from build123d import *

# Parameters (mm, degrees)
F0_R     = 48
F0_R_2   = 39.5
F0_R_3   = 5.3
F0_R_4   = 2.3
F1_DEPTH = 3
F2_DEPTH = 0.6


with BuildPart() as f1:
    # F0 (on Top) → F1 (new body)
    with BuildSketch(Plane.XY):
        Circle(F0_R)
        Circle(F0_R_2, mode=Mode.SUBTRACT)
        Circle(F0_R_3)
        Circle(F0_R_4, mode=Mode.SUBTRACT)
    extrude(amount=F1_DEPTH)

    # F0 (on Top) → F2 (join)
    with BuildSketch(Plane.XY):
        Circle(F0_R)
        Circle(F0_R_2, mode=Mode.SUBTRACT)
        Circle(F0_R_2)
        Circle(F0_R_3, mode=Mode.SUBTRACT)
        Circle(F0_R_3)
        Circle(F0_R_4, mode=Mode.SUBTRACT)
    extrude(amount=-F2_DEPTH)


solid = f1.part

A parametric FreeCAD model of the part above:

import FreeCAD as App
import Part
import Sketcher

doc = App.newDocument("Part")
body = doc.addObject("PartDesign::Body", "Body")
body.AllowCompound = True

# Sketch on XY plane
sketch1 = body.newObject("Sketcher::SketchObject", "Sketch")
sketch1.AttachmentSupport = (doc.getObject("XY_Plane"), [""])
sketch1.MapMode = "FlatFace"
sketch1.addGeometry(Part.Circle(App.Vector(0, 0, 0), App.Vector(0, 0, 1), 48), False)
sketch1.addGeometry(Part.Circle(App.Vector(0, 0, 0), App.Vector(0, 0, 1), 39.5), False)
sketch1.addGeometry(Part.Circle(App.Vector(0, 0, 0), App.Vector(0, 0, 1), 5.3), False)
sketch1.addGeometry(Part.Circle(App.Vector(0, 0, 0), App.Vector(0, 0, 1), 2.3), False)
sketch1.addConstraint(Sketcher.Constraint("Coincident", 0, 3, -1, 1))
sketch1.addConstraint(Sketcher.Constraint("Coincident", 1, 3, -1, 1))
sketch1.addConstraint(Sketcher.Constraint("Coincident", 2, 3, -1, 1))
sketch1.addConstraint(Sketcher.Constraint("Coincident", 3, 3, -1, 1))
sketch1.addConstraint(Sketcher.Constraint("Diameter", 0, 96.0))
sketch1.addConstraint(Sketcher.Constraint("Diameter", 1, 79.0))
sketch1.addConstraint(Sketcher.Constraint("Diameter", 2, 10.6))
sketch1.addConstraint(Sketcher.Constraint("Diameter", 3, 4.6))
pad1 = body.newObject("PartDesign::Pad", "Pad")
pad1.Profile = sketch1
pad1.Length = 3

# Sketch on XY plane
sketch2 = body.newObject("Sketcher::SketchObject", "Sketch001")
sketch2.AttachmentSupport = (doc.getObject("XY_Plane"), [""])
sketch2.MapMode = "FlatFace"
sketch2.addGeometry(Part.Circle(App.Vector(0, 0, 0), App.Vector(0, 0, 1), 48), False)
sketch2.addGeometry(Part.Circle(App.Vector(0, 0, 0), App.Vector(0, 0, 1), 2.3), False)
sketch2.addConstraint(Sketcher.Constraint("Coincident", 0, 3, -1, 1))
sketch2.addConstraint(Sketcher.Constraint("Coincident", 1, 3, -1, 1))
sketch2.addConstraint(Sketcher.Constraint("Diameter", 0, 96.0))
sketch2.addConstraint(Sketcher.Constraint("Diameter", 1, 4.6))
pad2 = body.newObject("PartDesign::Pad", "Pad001")
pad2.Profile = sketch2
pad2.Length = 0.6
pad2.Reversed = True

doc.recompute()
